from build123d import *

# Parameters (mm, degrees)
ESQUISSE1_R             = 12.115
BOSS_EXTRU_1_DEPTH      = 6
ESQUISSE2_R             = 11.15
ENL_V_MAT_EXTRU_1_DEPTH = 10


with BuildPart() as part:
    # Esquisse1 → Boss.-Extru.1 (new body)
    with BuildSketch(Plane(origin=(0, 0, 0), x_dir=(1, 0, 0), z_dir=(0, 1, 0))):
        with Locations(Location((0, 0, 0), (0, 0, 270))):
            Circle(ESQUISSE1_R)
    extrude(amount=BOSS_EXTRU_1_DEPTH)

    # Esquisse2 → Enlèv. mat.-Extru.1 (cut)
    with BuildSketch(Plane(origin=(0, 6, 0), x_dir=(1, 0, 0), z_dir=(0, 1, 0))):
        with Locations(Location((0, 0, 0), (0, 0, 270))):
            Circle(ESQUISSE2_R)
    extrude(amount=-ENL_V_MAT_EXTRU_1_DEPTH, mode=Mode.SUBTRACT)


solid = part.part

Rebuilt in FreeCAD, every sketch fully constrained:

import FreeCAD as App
import Part
import Sketcher

V = App.Vector

doc = App.newDocument("Part")
body = doc.addObject("PartDesign::Body", "Body")

# Sketch on XZ plane
sketch1 = body.newObject("Sketcher::SketchObject", "Sketch")
sketch1.AttachmentSupport = (doc.getObject("XZ_Plane"), [""])
sketch1.MapMode = "FlatFace"
sketch1.addGeometry(Part.Circle(V(0, 0, 0), V(0, 0, 1), 12.115), False)
sketch1.addConstraint([
    Sketcher.Constraint("Coincident", 0, 3, -1, 1),
    Sketcher.Constraint("Diameter", 0, 24.23),
])
pad1 = body.newObject("PartDesign::Pad", "Pad")
pad1.Profile = sketch1
pad1.Length = 6
pad1.Reversed = True

# Sketch on XZ plane
sketch2 = body.newObject("Sketcher::SketchObject", "Sketch001")
sketch2.AttachmentSupport = (doc.getObject("XZ_Plane"), [""])
sketch2.MapMode = "FlatFace"
sketch2.AttachmentOffset = App.Placement(V(0, 0, -6), App.Rotation())
sketch2.addGeometry(Part.Circle(V(0, 0, 0), V(0, 0, 1), 11.15), False)
sketch2.addConstraint([
    Sketcher.Constraint("Coincident", 0, 3, -1, 1),
    Sketcher.Constraint("Diameter", 0, 22.3),
])
pocket1 = body.newObject("PartDesign::Pocket", "Pocket")
pocket1.Profile = sketch2
pocket1.Length = 10
pocket1.Reversed = True

doc.recompute()
